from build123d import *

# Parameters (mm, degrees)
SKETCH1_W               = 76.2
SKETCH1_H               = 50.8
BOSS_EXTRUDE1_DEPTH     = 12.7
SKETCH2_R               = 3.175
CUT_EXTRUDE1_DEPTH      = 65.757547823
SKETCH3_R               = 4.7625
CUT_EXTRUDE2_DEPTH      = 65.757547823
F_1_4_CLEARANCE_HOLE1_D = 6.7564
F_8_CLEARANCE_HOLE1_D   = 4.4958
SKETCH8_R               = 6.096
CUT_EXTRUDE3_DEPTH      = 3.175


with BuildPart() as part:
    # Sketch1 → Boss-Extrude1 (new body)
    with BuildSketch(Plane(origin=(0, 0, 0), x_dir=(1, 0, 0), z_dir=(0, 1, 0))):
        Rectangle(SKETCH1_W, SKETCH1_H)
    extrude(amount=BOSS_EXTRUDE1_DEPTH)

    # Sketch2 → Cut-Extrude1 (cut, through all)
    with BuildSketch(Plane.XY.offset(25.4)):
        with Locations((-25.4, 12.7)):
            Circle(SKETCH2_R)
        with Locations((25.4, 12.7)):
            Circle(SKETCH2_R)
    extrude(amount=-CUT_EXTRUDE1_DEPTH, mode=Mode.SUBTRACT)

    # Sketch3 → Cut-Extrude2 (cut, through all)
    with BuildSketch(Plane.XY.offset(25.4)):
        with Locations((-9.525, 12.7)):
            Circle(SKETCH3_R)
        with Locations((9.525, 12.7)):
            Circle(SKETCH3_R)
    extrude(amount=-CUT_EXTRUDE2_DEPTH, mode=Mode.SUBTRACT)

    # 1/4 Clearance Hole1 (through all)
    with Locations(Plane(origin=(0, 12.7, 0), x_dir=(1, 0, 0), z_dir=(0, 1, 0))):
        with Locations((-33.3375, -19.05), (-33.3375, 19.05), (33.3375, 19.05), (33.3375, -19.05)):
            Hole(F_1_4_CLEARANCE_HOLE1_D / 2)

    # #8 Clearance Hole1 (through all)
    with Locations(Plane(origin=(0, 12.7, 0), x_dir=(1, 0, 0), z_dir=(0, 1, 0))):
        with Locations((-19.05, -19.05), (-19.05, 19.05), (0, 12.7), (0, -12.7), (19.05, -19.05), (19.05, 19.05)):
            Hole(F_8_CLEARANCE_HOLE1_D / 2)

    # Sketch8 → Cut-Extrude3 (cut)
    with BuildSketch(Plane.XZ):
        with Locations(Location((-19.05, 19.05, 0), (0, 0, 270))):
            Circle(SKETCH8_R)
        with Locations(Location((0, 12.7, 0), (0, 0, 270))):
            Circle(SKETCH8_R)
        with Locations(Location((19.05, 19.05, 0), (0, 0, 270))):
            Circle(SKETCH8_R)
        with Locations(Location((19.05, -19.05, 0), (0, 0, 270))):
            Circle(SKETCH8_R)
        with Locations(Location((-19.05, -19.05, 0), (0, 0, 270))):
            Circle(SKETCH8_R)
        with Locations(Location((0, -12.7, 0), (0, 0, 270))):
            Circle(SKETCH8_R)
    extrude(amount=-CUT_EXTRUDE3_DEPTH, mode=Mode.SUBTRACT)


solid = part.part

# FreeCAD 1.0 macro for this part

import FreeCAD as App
import Part
import Sketcher

V = App.Vector
Q = App.Units.Quantity


def add_polygon(sketch, points):
    """Adds a closed chain of lines whose ends are joined by coincident constraints."""
    first, n = sketch.GeometryCount, len(points)
    for a, b in zip(points, points[1:] + points[:1]):
        sketch.addGeometry(Part.LineSegment(App.Vector(*a, 0), App.Vector(*b, 0)), False)
    for i in range(n):
        sketch.addConstraint(Sketcher.Constraint("Coincident", first + i, 2, first + (i + 1) % n, 1))

doc = App.newDocument("Part")
body = doc.addObject("PartDesign::Body", "Body")

sketch1 = body.newObject("Sketcher::SketchObject", "Sketch")
sketch1.AttachmentSupport = (doc.getObject("XZ_Plane"), [""])
sketch1.MapMode = "FlatFace"
add_polygon(sketch1, [(-38, -25), (-38, 25), (38, 25), (38, -25)])
sketch1.addConstraint([
    Sketcher.Constraint("Vertical", 0),
    Sketcher.Constraint("Horizontal", 1),
    Sketcher.Constraint("Vertical", 2),
    Sketcher.Constraint("Horizontal", 3),
    Sketcher.Constraint("Symmetric", 0, 2, 2, 2, -1, 1),
    Sketcher.Constraint("DistanceX", 1, 1, 1, 2, Q("3 in")),
    Sketcher.Constraint("DistanceY", 0, 1, 0, 2, Q("2 in")),
])
pad1 = body.newObject("PartDesign::Pad", "Pad")
pad1.Profile = sketch1
pad1.Length = Q("0.5 in")
pad1.Reversed = True

sketch2 = body.newObject("Sketcher::SketchObject", "Sketch001")
sketch2.AttachmentSupport = (doc.getObject("XY_Plane"), [""])
sketch2.MapMode = "FlatFace"
sketch2.AttachmentOffset = App.Placement(V(0, 0, 1 * 25.4), App.Rotation())
sketch2.addGeometry([
    Part.Circle(V(-25.4, 12.7, 0), V(0, 0, 1), 3.2),
    Part.Circle(V(25.4, 12.7, 0), V(0, 0, 1), 3.2),
], False)
sketch2.addConstraint([
    Sketcher.Constraint("Equal", 0, 1),
    Sketcher.Constraint("Symmetric", 0, 3, 1, 3, -2),
    Sketcher.Constraint("Diameter", 0, Q("0.25 in")),
    Sketcher.Constraint("DistanceX", 0, 3, -1, 1, Q("1 in")),
    Sketcher.Constraint("DistanceY", -1, 1, 0, 3, Q("0.5 in")),
])
pocket1 = body.newObject("PartDesign::Pocket", "Pocket")
pocket1.Profile = sketch2
pocket1.Type = "ThroughAll"

sketch3 = body.newObject("Sketcher::SketchObject", "Sketch002")
sketch3.AttachmentSupport = (doc.getObject("XY_Plane"), [""])
sketch3.MapMode = "FlatFace"
sketch3.AttachmentOffset = App.Placement(V(0, 0, 1 * 25.4), App.Rotation())
sketch3.addGeometry([
    Part.Circle(V(-9.5, 12.7, 0), V(0, 0, 1), 4.8),
    Part.Circle(V(9.5, 12.7, 0), V(0, 0, 1), 4.8),
], False)
sketch3.addConstraint([
    Sketcher.Constraint("Equal", 0, 1),
    Sketcher.Constraint("Symmetric", 0, 3, 1, 3, -2),
    Sketcher.Constraint("Diameter", 0, Q("0.375 in")),
    Sketcher.Constraint("DistanceY", -1, 1, 0, 3, Q("0.5 in")),
    Sketcher.Constraint("DistanceX", 0, 3, 1, 3, Q("0.75 in")),
])
pocket2 = body.newObject("PartDesign::Pocket", "Pocket001")
pocket2.Profile = sketch3
pocket2.Type = "ThroughAll"

sketch4 = body.newObject("Sketcher::SketchObject", "Sketch003")
sketch4.AttachmentSupport = (doc.getObject("XZ_Plane"), [""])
sketch4.MapMode = "FlatFace"
sketch4.AttachmentOffset = App.Placement(V(0, 0, -0.5 * 25.4), App.Rotation())
sketch4.addGeometry([
    Part.Circle(V(-33.3, 19.1, 0), V(0, 0, 1), 3.4),
    Part.Circle(V(-33.3, -19.1, 0), V(0, 0, 1), 3.4),
    Part.Circle(V(33.3, -19.1, 0), V(0, 0, 1), 3.4),
    Part.Circle(V(33.3, 19.1, 0), V(0, 0, 1), 3.4),
], False)
sketch4.addConstraint([
    Sketcher.Constraint("Equal", 0, 1),
    Sketcher.Constraint("Equal", 1, 2),
    Sketcher.Constraint("Equal", 2, 3),
    Sketcher.Constraint("Symmetric", 0, 3, 2, 3, -1, 1),
    Sketcher.Constraint("Symmetric", 1, 3, 3, 3, -1, 1),
    Sketcher.Constraint("Symmetric", 1, 3, 2, 3, -2),
    Sketcher.Constraint("Diameter", 0, Q("0.266 in")),
    Sketcher.Constraint("DistanceY", 1, 3, 0, 3, Q("1.5 in")),
    Sketcher.Constraint("DistanceX", 0, 3, -1, 1, Q("1.3125 in")),
])
doc.recompute()
hole = body.newObject("PartDesign::Hole", "Hole")
hole.Profile = sketch4
hole.ThreadType = "None"
hole.Diameter = Q("0.266 in")
hole.DepthType = "ThroughAll"
hole.Reversed = True

sketch5 = body.newObject("Sketcher::SketchObject", "Sketch004")
sketch5.AttachmentSupport = (doc.getObject("XZ_Plane"), [""])
sketch5.MapMode = "FlatFace"
sketch5.AttachmentOffset = App.Placement(V(0, 0, -0.5 * 25.4), App.Rotation())
sketch5.addGeometry([
    Part.Circle(V(-19.1, 19.1, 0), V(0, 0, 1), 2.2),
    Part.Circle(V(-19.1, -19.1, 0), V(0, 0, 1), 2.2),
    Part.Circle(V(0, -12.7, 0), V(0, 0, 1), 2.2),
    Part.Circle(V(0, 12.7, 0), V(0, 0, 1), 2.2),
    Part.Circle(V(19.1, 19.1, 0), V(0, 0, 1), 2.2),
    Part.Circle(V(19.1, -19.1, 0), V(0, 0, 1), 2.2),
], False)
sketch5.addConstraint([
    Sketcher.Constraint("Equal", 0, 1),
    Sketcher.Constraint("Equal", 1, 2),
    Sketcher.Constraint("Equal", 2, 3),
    Sketcher.Constraint("Equal", 3, 4),
    Sketcher.Constraint("Equal", 4, 5),
    Sketcher.Constraint("Symmetric", 2, 3, 3, 3, -1, 1),
    Sketcher.Constraint("Symmetric", 1, 3, 4, 3, -1, 1),
    Sketcher.Constraint("Symmetric", 0, 3, 5, 3, -1, 1),
    Sketcher.Constraint("Symmetric", 0, 3, 4, 3, -2),
    Sketcher.Constraint("PointOnObject", 2, 3, -2),
    Sketcher.Constraint("Diameter", 0, Q("0.177 in")),
    Sketcher.Constraint("DistanceY", 2, 3, 3, 3, Q("1 in")),
    Sketcher.Constraint("DistanceY", 1, 3, 0, 3, Q("1.5 in")),
    Sketcher.Constraint("DistanceX", 0, 3, 4, 3, Q("1.5 in")),
])
doc.recompute()
hole2 = body.newObject("PartDesign::Hole", "Hole001")
hole2.Profile = sketch5
hole2.ThreadType = "None"
hole2.Diameter = Q("0.177 in")
hole2.DepthType = "ThroughAll"
hole2.Reversed = True

sketch6 = body.newObject("Sketcher::SketchObject", "Sketch005")
sketch6.AttachmentSupport = (doc.getObject("XZ_Plane"), [""])
sketch6.MapMode = "FlatFace"
sketch6.addGeometry([
    Part.Circle(V(-19, 19, 0), V(0, 0, 1), 6),
    Part.Circle(V(0, 13, 0), V(0, 0, 1), 6),
    Part.Circle(V(19, 19, 0), V(0, 0, 1), 6),
    Part.Circle(V(19, -19, 0), V(0, 0, 1), 6),
    Part.Circle(V(-19, -19, 0), V(0, 0, 1), 6),
    Part.Circle(V(0, -13, 0), V(0, 0, 1), 6),
], False)
sketch6.addConstraint([
    Sketcher.Constraint("Equal", 0, 1),
    Sketcher.Constraint("Equal", 1, 2),
    Sketcher.Constraint("Equal", 2, 3),
    Sketcher.Constraint("Equal", 3, 4),
    Sketcher.Constraint("Equal", 4, 5),
    Sketcher.Constraint("Symmetric", 0, 3, 3, 3, -1, 1),
    Sketcher.Constraint("Symmetric", 2, 3, 4, 3, -1, 1),
    Sketcher.Constraint("Symmetric", 1, 3, 5, 3, -1, 1),
    Sketcher.Constraint("Symmetric", 0, 3, 2, 3, -2),
    Sketcher.Constraint("PointOnObject", 1, 3, -2),
    Sketcher.Constraint("Diameter", 0, Q("0.48 in")),
    Sketcher.Constraint("DistanceY", 5, 3, 1, 3, Q("1 in")),
    Sketcher.Constraint("DistanceX", 0, 3, 2, 3, Q("1.5 in")),
    Sketcher.Constraint("DistanceY", 3, 3, 2, 3, Q("1.5 in")),
])
pocket3 = body.newObject("PartDesign::Pocket", "Pocket002")
pocket3.Profile = sketch6
pocket3.Length = Q("0.125 in")

doc.recompute()
